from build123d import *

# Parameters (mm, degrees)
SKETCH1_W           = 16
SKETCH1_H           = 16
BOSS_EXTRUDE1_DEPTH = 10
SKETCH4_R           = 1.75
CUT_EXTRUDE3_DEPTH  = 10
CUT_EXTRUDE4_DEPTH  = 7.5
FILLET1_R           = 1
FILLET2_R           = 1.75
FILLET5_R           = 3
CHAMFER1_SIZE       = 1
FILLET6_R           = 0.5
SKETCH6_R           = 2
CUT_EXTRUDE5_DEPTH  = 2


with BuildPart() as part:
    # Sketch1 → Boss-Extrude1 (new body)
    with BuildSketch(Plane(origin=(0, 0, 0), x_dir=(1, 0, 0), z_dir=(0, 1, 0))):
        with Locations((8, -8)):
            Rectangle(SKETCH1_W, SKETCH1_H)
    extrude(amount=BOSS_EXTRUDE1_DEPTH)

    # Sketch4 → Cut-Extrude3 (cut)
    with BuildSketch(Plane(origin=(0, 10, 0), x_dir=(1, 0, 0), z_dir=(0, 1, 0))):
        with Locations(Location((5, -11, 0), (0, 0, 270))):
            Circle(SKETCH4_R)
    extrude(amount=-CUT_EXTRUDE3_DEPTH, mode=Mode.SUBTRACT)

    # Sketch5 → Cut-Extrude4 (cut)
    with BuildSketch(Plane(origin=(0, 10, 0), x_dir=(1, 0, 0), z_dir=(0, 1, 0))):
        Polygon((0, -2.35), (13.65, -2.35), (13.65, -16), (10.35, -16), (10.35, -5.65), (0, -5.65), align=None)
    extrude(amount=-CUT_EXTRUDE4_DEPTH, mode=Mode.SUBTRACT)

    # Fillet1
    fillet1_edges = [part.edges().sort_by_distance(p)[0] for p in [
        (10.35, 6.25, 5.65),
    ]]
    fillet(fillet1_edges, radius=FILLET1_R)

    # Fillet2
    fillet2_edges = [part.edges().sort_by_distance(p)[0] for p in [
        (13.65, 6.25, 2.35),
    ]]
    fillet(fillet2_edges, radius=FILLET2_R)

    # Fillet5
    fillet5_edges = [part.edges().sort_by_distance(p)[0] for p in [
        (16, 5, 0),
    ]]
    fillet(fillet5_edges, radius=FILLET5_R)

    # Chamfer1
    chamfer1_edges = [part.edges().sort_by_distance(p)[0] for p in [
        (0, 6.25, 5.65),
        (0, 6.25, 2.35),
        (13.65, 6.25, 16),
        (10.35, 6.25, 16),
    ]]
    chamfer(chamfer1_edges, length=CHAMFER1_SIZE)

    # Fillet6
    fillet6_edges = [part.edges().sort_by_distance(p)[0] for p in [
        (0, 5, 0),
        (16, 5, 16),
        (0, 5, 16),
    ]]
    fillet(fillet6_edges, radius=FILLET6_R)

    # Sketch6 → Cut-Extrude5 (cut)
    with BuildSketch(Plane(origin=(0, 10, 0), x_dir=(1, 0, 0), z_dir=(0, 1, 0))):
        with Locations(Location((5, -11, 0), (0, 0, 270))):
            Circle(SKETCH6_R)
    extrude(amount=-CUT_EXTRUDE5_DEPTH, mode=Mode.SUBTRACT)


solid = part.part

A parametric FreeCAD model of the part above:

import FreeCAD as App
import Part
import Sketcher


def edges_at(feature, points):
    """Names of the edges that pass closest to the given points."""
    edges = feature.Shape.Edges
    near = lambda p: min(range(len(edges)), key=lambda i: edges[i].distToShape(Part.Vertex(*p))[0])
    return sorted({f"Edge{near(p) + 1}" for p in points})

doc = App.newDocument("Part")
body = doc.addObject("PartDesign::Body", "Body")

sketch1 = doc.addObject("Sketcher::SketchObject", "Sketch")
body.addObject(sketch1)
sketch1.AttachmentSupport = (doc.XZ_Plane, [""])
sketch1.MapMode = "FlatFace"
sketch1.addGeometry(Part.LineSegment(App.Vector(0, 0, 0), App.Vector(0, 16, 0)), False)
sketch1.addGeometry(Part.LineSegment(App.Vector(0, 16, 0), App.Vector(16, 16, 0)), False)
sketch1.addGeometry(Part.LineSegment(App.Vector(16, 16, 0), App.Vector(16, 0, 0)), False)
sketch1.addGeometry(Part.LineSegment(App.Vector(16, 0, 0), App.Vector(0, 0, 0)), False)
sketch1.addConstraint(Sketcher.Constraint("Coincident", 0, 2, 1, 1))
sketch1.addConstraint(Sketcher.Constraint("Coincident", 1, 2, 2, 1))
sketch1.addConstraint(Sketcher.Constraint("Coincident", 2, 2, 3, 1))
sketch1.addConstraint(Sketcher.Constraint("Coincident", 3, 2, 0, 1))
sketch1.addConstraint(Sketcher.Constraint("Vertical", 0))
sketch1.addConstraint(Sketcher.Constraint("Horizontal", 1))
sketch1.addConstraint(Sketcher.Constraint("Vertical", 2))
sketch1.addConstraint(Sketcher.Constraint("Horizontal", 3))
sketch1.addConstraint(Sketcher.Constraint("Coincident", 3, 2, -1, 1))
sketch1.addConstraint(Sketcher.Constraint("Equal", 3, 0))
sketch1.addConstraint(Sketcher.Constraint("DistanceX", 1, 1, 1, 2, 16.0))
pad1 = doc.addObject("PartDesign::Pad", "Pad")
body.addObject(pad1)
pad1.Profile = sketch1
pad1.Length = 10
pad1.Reversed = True

sketch2 = doc.addObject("Sketcher::SketchObject", "Sketch001")
body.addObject(sketch2)
sketch2.AttachmentSupport = (doc.XZ_Plane, [""])
sketch2.MapMode = "FlatFace"
sketch2.AttachmentOffset = App.Placement(App.Vector(0, 0, -10), App.Rotation())
sketch2.addGeometry(Part.Circle(App.Vector(5, 11, 0), App.Vector(0, 0, 1), 1.8), False)
sketch2.addConstraint(Sketcher.Constraint("Diameter", 0, 3.5))
sketch2.addConstraint(Sketcher.Constraint("DistanceX", -1, 1, 0, 3, 5.0))
sketch2.addConstraint(Sketcher.Constraint("DistanceY", -1, 1, 0, 3, 11.0))
pocket1 = doc.addObject("PartDesign::Pocket", "Pocket")
body.addObject(pocket1)
pocket1.Profile = sketch2
pocket1.Length = 10
pocket1.Reversed = True

sketch3 = doc.addObject("Sketcher::SketchObject", "Sketch002")
body.addObject(sketch3)
sketch3.AttachmentSupport = (doc.XZ_Plane, [""])
sketch3.MapMode = "FlatFace"
sketch3.AttachmentOffset = App.Placement(App.Vector(0, 0, -10), App.Rotation())
sketch3.addGeometry(Part.LineSegment(App.Vector(13.7, 2.4, 0), App.Vector(0, 2.4, 0)), False)
sketch3.addGeometry(Part.LineSegment(App.Vector(0, 2.4, 0), App.Vector(0, 5.7, 0)), False)
sketch3.addGeometry(Part.LineSegment(App.Vector(0, 5.7, 0), App.Vector(10.3, 5.7, 0)), False)
sketch3.addGeometry(Part.LineSegment(App.Vector(10.3, 5.7, 0), App.Vector(10.3, 16, 0)), False)
sketch3.addGeometry(Part.LineSegment(App.Vector(10.3, 16, 0), App.Vector(13.7, 16, 0)), False)
sketch3.addGeometry(Part.LineSegment(App.Vector(13.7, 16, 0), App.Vector(13.7, 2.4, 0)), False)
sketch3.addConstraint(Sketcher.Constraint("Coincident", 0, 2, 1, 1))
sketch3.addConstraint(Sketcher.Constraint("Coincident", 1, 2, 2, 1))
sketch3.addConstraint(Sketcher.Constraint("Coincident", 2, 2, 3, 1))
sketch3.addConstraint(Sketcher.Constraint("Coincident", 3, 2, 4, 1))
sketch3.addConstraint(Sketcher.Constraint("Coincident", 4, 2, 5, 1))
sketch3.addConstraint(Sketcher.Constraint("Coincident", 5, 2, 0, 1))
sketch3.addConstraint(Sketcher.Constraint("Horizontal", 0))
sketch3.addConstraint(Sketcher.Constraint("Vertical", 1))
sketch3.addConstraint(Sketcher.Constraint("Horizontal", 2))
sketch3.addConstraint(Sketcher.Constraint("Vertical", 3))
sketch3.addConstraint(Sketcher.Constraint("Horizontal", 4))
sketch3.addConstraint(Sketcher.Constraint("Vertical", 5))
sketch3.addConstraint(Sketcher.Constraint("PointOnObject", 0, 2, -2))
sketch3.addConstraint(Sketcher.Constraint("Equal", 4, 1))
sketch3.addConstraint(Sketcher.Constraint("Equal", 2, 3))
sketch3.addConstraint(Sketcher.Constraint("DistanceX", 4, 1, 4, 2, 3.3))
sketch3.addConstraint(Sketcher.Constraint("DistanceY", -1, 1, 3, 2, 16.0))
sketch3.addConstraint(Sketcher.Constraint("DistanceX", 0, 2, 0, 1, 13.65))
pocket2 = doc.addObject("PartDesign::Pocket", "Pocket001")
body.addObject(pocket2)
pocket2.Profile = sketch3
pocket2.Length = 7.5
pocket2.Reversed = True
doc.recompute()

fillet = doc.addObject("PartDesign::Fillet", "Fillet")
body.addObject(fillet)
fillet.Base = (pocket2, edges_at(pocket2, [(10.35, 6.25, 5.65)]))
fillet.Radius = 1
doc.recompute()

fillet2 = doc.addObject("PartDesign::Fillet", "Fillet001")
body.addObject(fillet2)
fillet2.Base = (fillet, edges_at(fillet, [(13.65, 6.25, 2.35)]))
fillet2.Radius = 1.75
doc.recompute()

fillet3 = doc.addObject("PartDesign::Fillet", "Fillet002")
body.addObject(fillet3)
fillet3.Base = (fillet2, edges_at(fillet2, [(16, 5, 0)]))
fillet3.Radius = 3
doc.recompute()

chamfer = doc.addObject("PartDesign::Chamfer", "Chamfer")
body.addObject(chamfer)
chamfer.Base = (fillet3, edges_at(fillet3, [
    (0, 6.25, 5.65),
    (0, 6.25, 2.35),
    (13.65, 6.25, 16),
    (10.35, 6.25, 16),
]))
chamfer.Size = 1
doc.recompute()

fillet4 = doc.addObject("PartDesign::Fillet", "Fillet003")
body.addObject(fillet4)
fillet4.Base = (chamfer, edges_at(chamfer, [(0, 5, 0), (16, 5, 16), (0, 5, 16)]))
fillet4.Radius = 0.5

sketch4 = doc.addObject("Sketcher::SketchObject", "Sketch003")
body.addObject(sketch4)
sketch4.AttachmentSupport = (doc.XZ_Plane, [""])
sketch4.MapMode = "FlatFace"
sketch4.AttachmentOffset = App.Placement(App.Vector(0, 0, -10), App.Rotation())
sketch4.addGeometry(Part.Circle(App.Vector(5, 11, 0), App.Vector(0, 0, 1), 2), False)
sketch4.addConstraint(Sketcher.Constraint("Diameter", 0, 4.0))
sketch4.addConstraint(Sketcher.Constraint("DistanceX", -1, 1, 0, 3, 5.0))
sketch4.addConstraint(Sketcher.Constraint("DistanceY", -1, 1, 0, 3, 11.0))
pocket3 = doc.addObject("PartDesign::Pocket", "Pocket002")
body.addObject(pocket3)
pocket3.Profile = sketch4
pocket3.Length = 2
pocket3.Reversed = True

doc.recompute()
